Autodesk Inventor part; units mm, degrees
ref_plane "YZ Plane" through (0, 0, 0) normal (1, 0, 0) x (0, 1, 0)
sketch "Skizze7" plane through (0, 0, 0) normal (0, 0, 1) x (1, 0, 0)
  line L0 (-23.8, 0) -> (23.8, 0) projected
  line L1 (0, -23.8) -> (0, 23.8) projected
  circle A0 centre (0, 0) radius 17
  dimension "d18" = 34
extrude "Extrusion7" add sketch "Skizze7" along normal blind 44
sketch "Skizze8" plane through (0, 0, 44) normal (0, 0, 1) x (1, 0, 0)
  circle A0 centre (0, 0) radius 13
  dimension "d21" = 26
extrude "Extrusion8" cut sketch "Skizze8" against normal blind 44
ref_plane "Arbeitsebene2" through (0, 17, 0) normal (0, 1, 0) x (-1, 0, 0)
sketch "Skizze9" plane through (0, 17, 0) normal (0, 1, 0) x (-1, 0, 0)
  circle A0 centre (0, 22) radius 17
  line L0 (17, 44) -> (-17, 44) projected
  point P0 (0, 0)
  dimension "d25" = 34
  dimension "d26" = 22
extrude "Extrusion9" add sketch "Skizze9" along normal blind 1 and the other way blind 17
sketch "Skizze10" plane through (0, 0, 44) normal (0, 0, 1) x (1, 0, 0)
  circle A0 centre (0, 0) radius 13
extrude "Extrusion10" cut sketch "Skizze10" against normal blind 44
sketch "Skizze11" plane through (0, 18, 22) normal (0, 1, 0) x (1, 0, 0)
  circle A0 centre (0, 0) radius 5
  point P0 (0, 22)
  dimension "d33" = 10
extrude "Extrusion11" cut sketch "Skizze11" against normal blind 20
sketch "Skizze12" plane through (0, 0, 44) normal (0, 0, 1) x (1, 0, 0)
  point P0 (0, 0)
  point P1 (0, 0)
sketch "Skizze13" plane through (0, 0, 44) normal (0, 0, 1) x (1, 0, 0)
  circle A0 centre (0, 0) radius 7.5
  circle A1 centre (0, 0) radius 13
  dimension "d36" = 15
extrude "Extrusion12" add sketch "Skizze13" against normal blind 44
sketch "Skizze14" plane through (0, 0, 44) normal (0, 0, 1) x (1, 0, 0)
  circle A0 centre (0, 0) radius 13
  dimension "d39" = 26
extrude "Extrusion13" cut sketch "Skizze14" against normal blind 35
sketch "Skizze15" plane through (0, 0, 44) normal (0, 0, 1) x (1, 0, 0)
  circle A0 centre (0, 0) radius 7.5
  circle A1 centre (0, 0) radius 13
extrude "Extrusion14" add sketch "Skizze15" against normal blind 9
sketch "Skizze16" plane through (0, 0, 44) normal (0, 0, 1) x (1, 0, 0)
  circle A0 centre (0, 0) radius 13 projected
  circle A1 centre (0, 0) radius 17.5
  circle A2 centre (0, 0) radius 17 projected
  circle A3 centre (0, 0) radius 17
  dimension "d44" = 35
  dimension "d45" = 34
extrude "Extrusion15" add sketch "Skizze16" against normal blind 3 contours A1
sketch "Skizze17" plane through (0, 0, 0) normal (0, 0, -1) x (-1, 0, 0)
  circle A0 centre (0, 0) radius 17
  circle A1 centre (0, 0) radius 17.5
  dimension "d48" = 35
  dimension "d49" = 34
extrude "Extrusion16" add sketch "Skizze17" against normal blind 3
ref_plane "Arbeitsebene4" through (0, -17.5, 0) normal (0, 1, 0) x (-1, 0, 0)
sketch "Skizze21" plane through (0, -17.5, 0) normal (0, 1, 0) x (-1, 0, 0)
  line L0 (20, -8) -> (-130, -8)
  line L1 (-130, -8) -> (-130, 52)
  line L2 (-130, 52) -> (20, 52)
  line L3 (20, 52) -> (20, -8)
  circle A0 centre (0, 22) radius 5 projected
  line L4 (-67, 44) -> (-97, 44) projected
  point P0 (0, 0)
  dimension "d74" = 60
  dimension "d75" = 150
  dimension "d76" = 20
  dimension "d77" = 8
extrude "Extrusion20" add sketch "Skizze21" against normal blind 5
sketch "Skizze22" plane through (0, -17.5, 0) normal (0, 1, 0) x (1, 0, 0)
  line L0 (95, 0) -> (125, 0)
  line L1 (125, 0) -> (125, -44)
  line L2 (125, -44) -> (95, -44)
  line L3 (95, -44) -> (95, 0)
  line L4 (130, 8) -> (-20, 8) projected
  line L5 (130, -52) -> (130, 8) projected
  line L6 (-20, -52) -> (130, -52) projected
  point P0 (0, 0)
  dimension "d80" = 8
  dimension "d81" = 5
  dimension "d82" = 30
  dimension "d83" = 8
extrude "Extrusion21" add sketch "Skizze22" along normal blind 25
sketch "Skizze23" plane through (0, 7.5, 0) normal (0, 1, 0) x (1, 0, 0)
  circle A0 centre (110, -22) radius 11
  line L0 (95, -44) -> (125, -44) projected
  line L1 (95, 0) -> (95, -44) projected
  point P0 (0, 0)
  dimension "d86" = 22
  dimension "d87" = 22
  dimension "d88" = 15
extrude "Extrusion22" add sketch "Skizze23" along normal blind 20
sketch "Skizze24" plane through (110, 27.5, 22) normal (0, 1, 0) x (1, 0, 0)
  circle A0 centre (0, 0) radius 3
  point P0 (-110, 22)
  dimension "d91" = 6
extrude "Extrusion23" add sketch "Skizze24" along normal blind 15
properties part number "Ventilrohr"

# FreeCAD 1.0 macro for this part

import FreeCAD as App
import Part
import Sketcher
Q = App.Units.Quantity


def add_polygon(sketch, points):
    """Adds a closed chain of lines whose ends are joined by coincident constraints."""
    first, n = sketch.GeometryCount, len(points)
    for a, b in zip(points, points[1:] + points[:1]):
        sketch.addGeometry(Part.LineSegment(App.Vector(*a, 0), App.Vector(*b, 0)), False)
    for i in range(n):
        sketch.addConstraint(Sketcher.Constraint("Coincident", first + i, 2, first + (i + 1) % n, 1))

doc = App.newDocument("Part")
params = doc.addObject("Spreadsheet::Sheet", "Params")
for row, (alias, value) in enumerate([
    ("sketch1_diameter", "34 mm"),
    ("pad1_length", "44 mm"),
    ("sketch2_diameter", "26 mm"),
    ("pocket1_length", "44 mm"),
    ("sketch3_diameter", "34 mm"),
    ("pad2_length", "1 mm"),
    ("pad2_length2", "17 mm"),
    ("sketch4_diameter", "26 mm"),
    ("pocket2_length", "44 mm"),
    ("sketch5_diameter", "10 mm"),
    ("pocket3_length", "20 mm"),
    ("sketch6_diameter", "15 mm"),
    ("sketch6_diameter2", "26 mm"),
    ("pad3_length", "44 mm"),
    ("sketch7_diameter", "26 mm"),
    ("pocket4_length", "35 mm"),
    ("sketch8_diameter", "26 mm"),
    ("sketch8_diameter2", "15 mm"),
    ("pad4_length", "9 mm"),
    ("sketch9_diameter", "35 mm"),
    ("sketch9_diameter2", "34 mm"),
    ("pad5_length", "3 mm"),
    ("sketch10_diameter", "35 mm"),
    ("sketch10_diameter2", "34 mm"),
    ("pad6_length", "3 mm"),
    ("sketch11_width", "150 mm"),
    ("sketch11_height", "60 mm"),
    ("sketch11_diameter", "10 mm"),
    ("pad7_length", "5 mm"),
    ("sketch12_width", "30 mm"),
    ("sketch12_height", "44 mm"),
    ("pad8_length", "25 mm"),
    ("sketch13_diameter", "22 mm"),
    ("pad9_length", "20 mm"),
    ("sketch14_diameter", "6 mm"),
    ("pad10_length", "15 mm"),
], start=1):
    params.set(f"A{row}", alias)
    params.set(f"B{row}", "=" + value)
    params.setAlias(f"B{row}", alias)

body = doc.addObject("PartDesign::Body", "Body")
body.AllowCompound = True

# Sketch on XY plane
sketch1 = body.newObject("Sketcher::SketchObject", "Sketch")
sketch1.AttachmentSupport = (doc.getObject("XY_Plane"), [""])
sketch1.MapMode = "FlatFace"
sketch1.addGeometry(Part.Circle(App.Vector(0, 0, 0), App.Vector(0, 0, 1), 17), False)
sketch1.addConstraint([
    Sketcher.Constraint("Coincident", 0, 3, -1, 1),
    Sketcher.Constraint("Diameter", 0, Q("34 mm")),
])
sketch1.setExpression("Constraints[1]", "Params.sketch1_diameter")
pad1 = body.newObject("PartDesign::Pad", "Pad")
pad1.Profile = sketch1
pad1.setExpression("Length", "Params.pad1_length")

# Sketch on XY plane
sketch2 = body.newObject("Sketcher::SketchObject", "Sketch001")
sketch2.AttachmentSupport = (doc.getObject("XY_Plane"), [""])
sketch2.MapMode = "FlatFace"
sketch2.AttachmentOffset = App.Placement(App.Vector(0, 0, 44), App.Rotation())
sketch2.addGeometry(Part.Circle(App.Vector(0, 0, 0), App.Vector(0, 0, 1), 13), False)
sketch2.addConstraint([
    Sketcher.Constraint("Coincident", 0, 3, -1, 1),
    Sketcher.Constraint("Diameter", 0, Q("26 mm")),
])
sketch2.setExpression("Constraints[1]", "Params.sketch2_diameter")
pocket1 = body.newObject("PartDesign::Pocket", "Pocket")
pocket1.Profile = sketch2
pocket1.setExpression("Length", "Params.pocket1_length")

# Sketch on XZ plane
sketch3 = body.newObject("Sketcher::SketchObject", "Sketch002")
sketch3.AttachmentSupport = (doc.getObject("XZ_Plane"), [""])
sketch3.MapMode = "FlatFace"
sketch3.AttachmentOffset = App.Placement(App.Vector(0, 0, -17), App.Rotation())
sketch3.addGeometry(Part.Circle(App.Vector(0, 22, 0), App.Vector(0, 0, 1), 17), False)
sketch3.addConstraint([
    Sketcher.Constraint("PointOnObject", 0, 3, -2),
    Sketcher.Constraint("Diameter", 0, Q("34 mm")),
    Sketcher.Constraint("DistanceY", -1, 1, 0, 3, Q("22 mm")),
])
sketch3.setExpression("Constraints[1]", "Params.sketch3_diameter")
pad2 = body.newObject("PartDesign::Pad", "Pad001")
pad2.Profile = sketch3
pad2.Type = "TwoLengths"
pad2.setExpression("Length", "Params.pad2_length")
pad2.setExpression("Length2", "Params.pad2_length2")
pad2.Reversed = True

# Sketch on XY plane
sketch4 = body.newObject("Sketcher::SketchObject", "Sketch003")
sketch4.AttachmentSupport = (doc.getObject("XY_Plane"), [""])
sketch4.MapMode = "FlatFace"
sketch4.AttachmentOffset = App.Placement(App.Vector(0, 0, 44), App.Rotation())
sketch4.addGeometry(Part.Circle(App.Vector(0, 0, 0), App.Vector(0, 0, 1), 13), False)
sketch4.addConstraint([
    Sketcher.Constraint("Coincident", 0, 3, -1, 1),
    Sketcher.Constraint("Diameter", 0, Q("26 mm")),
])
sketch4.setExpression("Constraints[1]", "Params.sketch4_diameter")
pocket2 = body.newObject("PartDesign::Pocket", "Pocket001")
pocket2.Profile = sketch4
pocket2.setExpression("Length", "Params.pocket2_length")

# Sketch on XZ plane
sketch5 = body.newObject("Sketcher::SketchObject", "Sketch004")
sketch5.AttachmentSupport = (doc.getObject("XZ_Plane"), [""])
sketch5.MapMode = "FlatFace"
sketch5.AttachmentOffset = App.Placement(App.Vector(0, 0, -18), App.Rotation())
sketch5.addGeometry(Part.Circle(App.Vector(0, 22, 0), App.Vector(0, 0, 1), 5), False)
sketch5.addConstraint([
    Sketcher.Constraint("PointOnObject", 0, 3, -2),
    Sketcher.Constraint("Diameter", 0, Q("10 mm")),
    Sketcher.Constraint("DistanceY", -1, 1, 0, 3, Q("22 mm")),
])
sketch5.setExpression("Constraints[1]", "Params.sketch5_diameter")
pocket3 = body.newObject("PartDesign::Pocket", "Pocket002")
pocket3.Profile = sketch5
pocket3.setExpression("Length", "Params.pocket3_length")
pocket3.Reversed = True

# Sketch on XY plane
sketch6 = body.newObject("Sketcher::SketchObject", "Sketch005")
sketch6.AttachmentSupport = (doc.getObject("XY_Plane"), [""])
sketch6.MapMode = "FlatFace"
sketch6.AttachmentOffset = App.Placement(App.Vector(0, 0, 44), App.Rotation())
sketch6.addGeometry([
    Part.Circle(App.Vector(0, 0, 0), App.Vector(0, 0, 1), 13),
    Part.Circle(App.Vector(0, 0, 0), App.Vector(0, 0, 1), 7.5),
], False)
sketch6.addConstraint([
    Sketcher.Constraint("Coincident", 0, 3, -1, 1),
    Sketcher.Constraint("Coincident", 1, 3, -1, 1),
    Sketcher.Constraint("Diameter", 1, Q("15 mm")),
    Sketcher.Constraint("Diameter", 0, Q("26 mm")),
])
sketch6.setExpression("Constraints[2]", "Params.sketch6_diameter")
sketch6.setExpression("Constraints[3]", "Params.sketch6_diameter2")
pad3 = body.newObject("PartDesign::Pad", "Pad002")
pad3.Profile = sketch6
pad3.setExpression("Length", "Params.pad3_length")
pad3.Reversed = True

# Sketch on XY plane
sketch7 = body.newObject("Sketcher::SketchObject", "Sketch006")
sketch7.AttachmentSupport = (doc.getObject("XY_Plane"), [""])
sketch7.MapMode = "FlatFace"
sketch7.AttachmentOffset = App.Placement(App.Vector(0, 0, 44), App.Rotation())
sketch7.addGeometry(Part.Circle(App.Vector(0, 0, 0), App.Vector(0, 0, 1), 13), False)
sketch7.addConstraint([
    Sketcher.Constraint("Coincident", 0, 3, -1, 1),
    Sketcher.Constraint("Diameter", 0, Q("26 mm")),
])
sketch7.setExpression("Constraints[1]", "Params.sketch7_diameter")
pocket4 = body.newObject("PartDesign::Pocket", "Pocket003")
pocket4.Profile = sketch7
pocket4.setExpression("Length", "Params.pocket4_length")

# Sketch on XY plane
sketch8 = body.newObject("Sketcher::SketchObject", "Sketch007")
sketch8.AttachmentSupport = (doc.getObject("XY_Plane"), [""])
sketch8.MapMode = "FlatFace"
sketch8.AttachmentOffset = App.Placement(App.Vector(0, 0, 44), App.Rotation())
sketch8.addGeometry([
    Part.Circle(App.Vector(0, 0, 0), App.Vector(0, 0, 1), 13),
    Part.Circle(App.Vector(0, 0, 0), App.Vector(0, 0, 1), 7.5),
], False)
sketch8.addConstraint([
    Sketcher.Constraint("Coincident", 0, 3, -1, 1),
    Sketcher.Constraint("Coincident", 1, 3, -1, 1),
    Sketcher.Constraint("Diameter", 0, Q("26 mm")),
    Sketcher.Constraint("Diameter", 1, Q("15 mm")),
])
sketch8.setExpression("Constraints[2]", "Params.sketch8_diameter")
sketch8.setExpression("Constraints[3]", "Params.sketch8_diameter2")
pad4 = body.newObject("PartDesign::Pad", "Pad003")
pad4.Profile = sketch8
pad4.setExpression("Length", "Params.pad4_length")
pad4.Reversed = True

# Sketch on XY plane
sketch9 = body.newObject("Sketcher::SketchObject", "Sketch008")
sketch9.AttachmentSupport = (doc.getObject("XY_Plane"), [""])
sketch9.MapMode = "FlatFace"
sketch9.AttachmentOffset = App.Placement(App.Vector(0, 0, 44), App.Rotation())
sketch9.addGeometry([
    Part.Circle(App.Vector(0, 0, 0), App.Vector(0, 0, 1), 17.5),
    Part.Circle(App.Vector(0, 0, 0), App.Vector(0, 0, 1), 17),
], False)
sketch9.addConstraint([
    Sketcher.Constraint("Coincident", 0, 3, -1, 1),
    Sketcher.Constraint("Coincident", 1, 3, -1, 1),
    Sketcher.Constraint("Diameter", 0, Q("35 mm")),
    Sketcher.Constraint("Diameter", 1, Q("34 mm")),
])
sketch9.setExpression("Constraints[2]", "Params.sketch9_diameter")
sketch9.setExpression("Constraints[3]", "Params.sketch9_diameter2")
pad5 = body.newObject("PartDesign::Pad", "Pad004")
pad5.Profile = sketch9
pad5.setExpression("Length", "Params.pad5_length")
pad5.Reversed = True

# Sketch on XY plane
sketch10 = body.newObject("Sketcher::SketchObject", "Sketch009")
sketch10.AttachmentSupport = (doc.getObject("XY_Plane"), [""])
sketch10.MapMode = "FlatFace"
sketch10.addGeometry([
    Part.Circle(App.Vector(0, 0, 0), App.Vector(0, 0, 1), 17.5),
    Part.Circle(App.Vector(0, 0, 0), App.Vector(0, 0, 1), 17),
], False)
sketch10.addConstraint([
    Sketcher.Constraint("Coincident", 0, 3, -1, 1),
    Sketcher.Constraint("Coincident", 1, 3, -1, 1),
    Sketcher.Constraint("Diameter", 0, Q("35 mm")),
    Sketcher.Constraint("Diameter", 1, Q("34 mm")),
])
sketch10.setExpression("Constraints[2]", "Params.sketch10_diameter")
sketch10.setExpression("Constraints[3]", "Params.sketch10_diameter2")
pad6 = body.newObject("PartDesign::Pad", "Pad005")
pad6.Profile = sketch10
pad6.setExpression("Length", "Params.pad6_length")

# Sketch on XZ plane
sketch11 = body.newObject("Sketcher::SketchObject", "Sketch010")
sketch11.AttachmentSupport = (doc.getObject("XZ_Plane"), [""])
sketch11.MapMode = "FlatFace"
sketch11.AttachmentOffset = App.Placement(App.Vector(0, 0, 17.5), App.Rotation())
add_polygon(sketch11, [(130, -8), (-20, -8), (-20, 52), (130, 52)])  # lines 0-3
sketch11.addGeometry(Part.Circle(App.Vector(0, 22, 0), App.Vector(0, 0, 1), 5), False)  # 4
sketch11.addConstraint([
    Sketcher.Constraint("Horizontal", 0),
    Sketcher.Constraint("Vertical", 1),
    Sketcher.Constraint("Horizontal", 2),
    Sketcher.Constraint("Vertical", 3),
    Sketcher.Constraint("PointOnObject", 4, 3, -2),
    Sketcher.Constraint("DistanceX", 0, 2, 0, 1, Q("150 mm")),
    Sketcher.Constraint("DistanceY", 1, 1, 1, 2, Q("60 mm")),
    Sketcher.Constraint("Diameter", 4, Q("10 mm")),
    Sketcher.Constraint("DistanceX", 0, 2, -1, 1, Q("20 mm")),
    Sketcher.Constraint("DistanceY", 0, 2, -1, 1, Q("8 mm")),
    Sketcher.Constraint("DistanceY", -1, 1, 4, 3, Q("22 mm")),
])
sketch11.setExpression("Constraints[9]", "Params.sketch11_width")
sketch11.setExpression("Constraints[10]", "Params.sketch11_height")
sketch11.setExpression("Constraints[11]", "Params.sketch11_diameter")
pad7 = body.newObject("PartDesign::Pad", "Pad006")
pad7.Profile = sketch11
pad7.setExpression("Length", "Params.pad7_length")

# Sketch on XZ plane
sketch12 = body.newObject("Sketcher::SketchObject", "Sketch011")
sketch12.AttachmentSupport = (doc.getObject("XZ_Plane"), [""])
sketch12.MapMode = "FlatFace"
sketch12.AttachmentOffset = App.Placement(App.Vector(0, 0, 17.5), App.Rotation())
add_polygon(sketch12, [(125, 0), (95, 0), (95, 44), (125, 44)])  # lines 0-3
sketch12.addConstraint([
    Sketcher.Constraint("Horizontal", 0),
    Sketcher.Constraint("Vertical", 1),
    Sketcher.Constraint("Horizontal", 2),
    Sketcher.Constraint("Vertical", 3),
    Sketcher.Constraint("PointOnObject", 0, 2, -1),
    Sketcher.Constraint("DistanceX", 0, 2, 0, 1, Q("30 mm")),
    Sketcher.Constraint("DistanceY", 1, 1, 1, 2, Q("44 mm")),
    Sketcher.Constraint("DistanceX", -1, 1, 0, 2, Q("95 mm")),
])
sketch12.setExpression("Constraints[9]", "Params.sketch12_width")
sketch12.setExpression("Constraints[10]", "Params.sketch12_height")
pad8 = body.newObject("PartDesign::Pad", "Pad007")
pad8.Profile = sketch12
pad8.setExpression("Length", "Params.pad8_length")
pad8.Reversed = True

# Sketch on XZ plane
sketch13 = body.newObject("Sketcher::SketchObject", "Sketch012")
sketch13.AttachmentSupport = (doc.getObject("XZ_Plane"), [""])
sketch13.MapMode = "FlatFace"
sketch13.AttachmentOffset = App.Placement(App.Vector(0, 0, -7.5), App.Rotation())
sketch13.addGeometry(Part.Circle(App.Vector(110, 22, 0), App.Vector(0, 0, 1), 11), False)
sketch13.addConstraint([
    Sketcher.Constraint("Diameter", 0, Q("22 mm")),
    Sketcher.Constraint("DistanceY", -1, 1, 0, 3, Q("22 mm")),
    Sketcher.Constraint("DistanceX", -1, 1, 0, 3, Q("110 mm")),
])
sketch13.setExpression("Constraints[0]", "Params.sketch13_diameter")
pad9 = body.newObject("PartDesign::Pad", "Pad008")
pad9.Profile = sketch13
pad9.setExpression("Length", "Params.pad9_length")
pad9.Reversed = True

# Sketch on XZ plane
sketch14 = body.newObject("Sketcher::SketchObject", "Sketch013")
sketch14.AttachmentSupport = (doc.getObject("XZ_Plane"), [""])
sketch14.MapMode = "FlatFace"
sketch14.AttachmentOffset = App.Placement(App.Vector(0, 0, -27.5), App.Rotation())
sketch14.addGeometry(Part.Circle(App.Vector(110, 22, 0), App.Vector(0, 0, 1), 3), False)
sketch14.addConstraint([
    Sketcher.Constraint("Diameter", 0, Q("6 mm")),
    Sketcher.Constraint("DistanceX", -1, 1, 0, 3, Q("110 mm")),
    Sketcher.Constraint("DistanceY", -1, 1, 0, 3, Q("22 mm")),
])
sketch14.setExpression("Constraints[0]", "Params.sketch14_diameter")
pad10 = body.newObject("PartDesign::Pad", "Pad009")
pad10.Profile = sketch14
pad10.setExpression("Length", "Params.pad10_length")
pad10.Reversed = True

doc.recompute()
